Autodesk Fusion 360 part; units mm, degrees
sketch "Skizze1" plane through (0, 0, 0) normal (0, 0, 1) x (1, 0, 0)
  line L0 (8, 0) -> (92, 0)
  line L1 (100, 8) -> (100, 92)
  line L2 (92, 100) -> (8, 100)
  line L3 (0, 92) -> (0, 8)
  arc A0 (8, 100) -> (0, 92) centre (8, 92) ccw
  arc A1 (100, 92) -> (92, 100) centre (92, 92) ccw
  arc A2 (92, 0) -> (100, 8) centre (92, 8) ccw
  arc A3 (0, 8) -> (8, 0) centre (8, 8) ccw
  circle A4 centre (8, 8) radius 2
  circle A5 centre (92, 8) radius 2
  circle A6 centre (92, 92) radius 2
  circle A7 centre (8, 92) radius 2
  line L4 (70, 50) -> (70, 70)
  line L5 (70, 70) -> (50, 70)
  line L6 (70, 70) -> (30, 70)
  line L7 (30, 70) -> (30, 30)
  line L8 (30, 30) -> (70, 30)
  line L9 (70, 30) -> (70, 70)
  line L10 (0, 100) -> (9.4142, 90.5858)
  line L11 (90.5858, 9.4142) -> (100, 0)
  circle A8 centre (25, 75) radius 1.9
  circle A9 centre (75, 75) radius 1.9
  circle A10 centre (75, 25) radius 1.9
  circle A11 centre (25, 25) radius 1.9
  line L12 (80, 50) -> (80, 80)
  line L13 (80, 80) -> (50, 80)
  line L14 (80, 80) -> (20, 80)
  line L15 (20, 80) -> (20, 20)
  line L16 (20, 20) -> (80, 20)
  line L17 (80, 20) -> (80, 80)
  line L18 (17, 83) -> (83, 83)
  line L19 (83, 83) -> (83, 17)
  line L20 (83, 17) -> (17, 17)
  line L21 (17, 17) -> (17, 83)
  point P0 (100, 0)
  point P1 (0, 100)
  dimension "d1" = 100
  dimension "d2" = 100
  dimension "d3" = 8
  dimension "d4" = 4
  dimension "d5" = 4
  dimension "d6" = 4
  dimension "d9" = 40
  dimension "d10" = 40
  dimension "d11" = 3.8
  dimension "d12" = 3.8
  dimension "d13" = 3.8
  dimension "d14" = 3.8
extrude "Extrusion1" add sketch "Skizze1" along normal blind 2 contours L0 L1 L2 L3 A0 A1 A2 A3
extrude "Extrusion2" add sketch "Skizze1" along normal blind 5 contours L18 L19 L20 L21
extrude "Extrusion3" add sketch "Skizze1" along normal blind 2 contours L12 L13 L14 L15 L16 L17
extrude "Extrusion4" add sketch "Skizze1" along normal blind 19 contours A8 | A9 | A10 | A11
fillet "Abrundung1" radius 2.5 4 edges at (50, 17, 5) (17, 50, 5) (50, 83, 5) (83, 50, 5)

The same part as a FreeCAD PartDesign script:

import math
import FreeCAD as App
import Part
import Sketcher
Q = App.Units.Quantity


def edges_at(feature, points):
    """Names of the edges that pass closest to the given points."""
    edges = feature.Shape.Edges
    near = lambda p: min(range(len(edges)), key=lambda i: edges[i].distToShape(Part.Vertex(*p))[0])
    return sorted({f"Edge{near(p) + 1}" for p in points})

doc = App.newDocument("Part")
body = doc.addObject("PartDesign::Body", "Body")

sketch1 = body.newObject("Sketcher::SketchObject", "Sketch")
sketch1.AttachmentSupport = (doc.getObject("XY_Plane"), [""])
sketch1.MapMode = "FlatFace"
sketch1.addGeometry([
    Part.ArcOfCircle(Part.Circle(App.Vector(8, 8, 0), App.Vector(0, 0, 1), 8), math.radians(180), math.radians(270)),
    Part.LineSegment(App.Vector(8, 0, 0), App.Vector(92, 0, 0)),
    Part.ArcOfCircle(Part.Circle(App.Vector(92, 8, 0), App.Vector(0, 0, 1), 8), math.radians(-90), math.radians(-45)),
    Part.ArcOfCircle(Part.Circle(App.Vector(92, 8, 0), App.Vector(0, 0, 1), 8), math.radians(-45), math.radians(0)),
    Part.LineSegment(App.Vector(100, 8, 0), App.Vector(100, 92, 0)),
    Part.ArcOfCircle(Part.Circle(App.Vector(92, 92, 0), App.Vector(0, 0, 1), 8), math.radians(0), math.radians(90)),
    Part.LineSegment(App.Vector(92, 100, 0), App.Vector(8, 100, 0)),
    Part.ArcOfCircle(Part.Circle(App.Vector(8, 92, 0), App.Vector(0, 0, 1), 8), math.radians(90), math.radians(135)),
    Part.ArcOfCircle(Part.Circle(App.Vector(8, 92, 0), App.Vector(0, 0, 1), 8), math.radians(135), math.radians(180)),
    Part.LineSegment(App.Vector(0, 92, 0), App.Vector(0, 8, 0)),
    Part.Circle(App.Vector(8, 8, 0), App.Vector(0, 0, 1), 2),
    Part.Circle(App.Vector(92, 8, 0), App.Vector(0, 0, 1), 2),
    Part.Circle(App.Vector(8, 92, 0), App.Vector(0, 0, 1), 2),
    Part.LineSegment(App.Vector(17, 17, 0), App.Vector(17, 83, 0)),
    Part.LineSegment(App.Vector(17, 83, 0), App.Vector(83, 83, 0)),
    Part.LineSegment(App.Vector(83, 83, 0), App.Vector(83, 17, 0)),
    Part.LineSegment(App.Vector(83, 17, 0), App.Vector(17, 17, 0)),
    Part.Circle(App.Vector(92, 92, 0), App.Vector(0, 0, 1), 2),
], False)
sketch1.addConstraint([
    Sketcher.Constraint("Tangent", 0, 2, 1, 1),
    Sketcher.Constraint("Tangent", 1, 2, 2, 1),
    Sketcher.Constraint("Tangent", 2, 2, 3, 1),
    Sketcher.Constraint("Tangent", 3, 2, 4, 1),
    Sketcher.Constraint("Tangent", 4, 2, 5, 1),
    Sketcher.Constraint("Tangent", 5, 2, 6, 1),
    Sketcher.Constraint("Tangent", 6, 2, 7, 1),
    Sketcher.Constraint("Tangent", 7, 2, 8, 1),
    Sketcher.Constraint("Tangent", 8, 2, 9, 1),
    Sketcher.Constraint("Tangent", 9, 2, 0, 1),
    Sketcher.Constraint("Coincident", 13, 2, 14, 1),
    Sketcher.Constraint("Coincident", 14, 2, 15, 1),
    Sketcher.Constraint("Coincident", 15, 2, 16, 1),
    Sketcher.Constraint("Coincident", 16, 2, 13, 1),
    Sketcher.Constraint("Horizontal", 1),
    Sketcher.Constraint("Vertical", 4),
    Sketcher.Constraint("Horizontal", 6),
    Sketcher.Constraint("Vertical", 9),
    Sketcher.Constraint("Vertical", 13),
    Sketcher.Constraint("Horizontal", 14),
    Sketcher.Constraint("Vertical", 15),
    Sketcher.Constraint("Horizontal", 16),
    Sketcher.Constraint("Coincident", 10, 3, 0, 3),
    Sketcher.Constraint("Coincident", 11, 3, 2, 3),
    Sketcher.Constraint("Coincident", 12, 3, 7, 3),
    Sketcher.Constraint("Coincident", 17, 3, 5, 3),
    Sketcher.Constraint("Equal", 0, 2),
    Sketcher.Constraint("Equal", 2, 3),
    Sketcher.Constraint("Equal", 3, 5),
    Sketcher.Constraint("Equal", 5, 7),
    Sketcher.Constraint("Equal", 7, 8),
    Sketcher.Constraint("Equal", 10, 11),
    Sketcher.Constraint("Equal", 11, 12),
    Sketcher.Constraint("Equal", 12, 17),
    Sketcher.Constraint("PointOnObject", 0, 2, -1),
    Sketcher.Constraint("PointOnObject", 8, 2, -2),
    Sketcher.Constraint("Equal", 6, 4),
    Sketcher.Constraint("Equal", 16, 13),
    Sketcher.Constraint("Diameter", 10, Q("4 mm")),
    Sketcher.Constraint("Radius", 0, Q("8 mm")),
    Sketcher.Constraint("DistanceX", -1, 1, 3, 2, Q("100 mm")),
    Sketcher.Constraint("DistanceX", 14, 1, 14, 2, Q("66 mm")),
    Sketcher.Constraint("DistanceX", -1, 1, 13, 2, Q("17 mm")),
    Sketcher.Constraint("DistanceY", -1, 1, 13, 2, Q("83 mm")),
    Sketcher.Constraint("DistanceX", -1, 1, 2, 2, Q("97.6569 mm")),
    Sketcher.Constraint("DistanceX", -1, 1, 7, 2, Q("2.3431 mm")),
])
pad1 = body.newObject("PartDesign::Pad", "Pad")
pad1.Profile = sketch1
pad1.Length = 2

sketch2 = body.newObject("Sketcher::SketchObject", "Sketch001")
sketch2.AttachmentSupport = (doc.getObject("XY_Plane"), [""])
sketch2.MapMode = "FlatFace"
sketch2.addGeometry([
    Part.LineSegment(App.Vector(83, 83, 0), App.Vector(17, 83, 0)),
    Part.LineSegment(App.Vector(17, 83, 0), App.Vector(17, 17, 0)),
    Part.LineSegment(App.Vector(17, 17, 0), App.Vector(83, 17, 0)),
    Part.LineSegment(App.Vector(83, 17, 0), App.Vector(83, 83, 0)),
    Part.LineSegment(App.Vector(80, 80, 0), App.Vector(80, 20, 0)),
    Part.LineSegment(App.Vector(80, 20, 0), App.Vector(20, 20, 0)),
    Part.LineSegment(App.Vector(20, 20, 0), App.Vector(20, 80, 0)),
    Part.LineSegment(App.Vector(20, 80, 0), App.Vector(80, 80, 0)),
], False)
sketch2.addConstraint([
    Sketcher.Constraint("Coincident", 0, 2, 1, 1),
    Sketcher.Constraint("Coincident", 1, 2, 2, 1),
    Sketcher.Constraint("Coincident", 2, 2, 3, 1),
    Sketcher.Constraint("Coincident", 3, 2, 0, 1),
    Sketcher.Constraint("Coincident", 4, 2, 5, 1),
    Sketcher.Constraint("Coincident", 5, 2, 6, 1),
    Sketcher.Constraint("Coincident", 6, 2, 7, 1),
    Sketcher.Constraint("Coincident", 7, 2, 4, 1),
    Sketcher.Constraint("Horizontal", 0),
    Sketcher.Constraint("Vertical", 1),
    Sketcher.Constraint("Horizontal", 2),
    Sketcher.Constraint("Vertical", 3),
    Sketcher.Constraint("Vertical", 4),
    Sketcher.Constraint("Horizontal", 5),
    Sketcher.Constraint("Vertical", 6),
    Sketcher.Constraint("Horizontal", 7),
    Sketcher.Constraint("Equal", 2, 1),
    Sketcher.Constraint("Equal", 7, 4),
    Sketcher.Constraint("DistanceX", 0, 2, 0, 1, Q("66 mm")),
    Sketcher.Constraint("DistanceX", 5, 2, 5, 1, Q("60 mm")),
    Sketcher.Constraint("DistanceX", -1, 1, 0, 2, Q("17 mm")),
    Sketcher.Constraint("DistanceY", -1, 1, 0, 2, Q("83 mm")),
    Sketcher.Constraint("DistanceX", -1, 1, 4, 2, Q("80 mm")),
    Sketcher.Constraint("DistanceY", -1, 1, 4, 2, Q("20 mm")),
])
pad2 = body.newObject("PartDesign::Pad", "Pad001")
pad2.Profile = sketch2
pad2.Length = 5

sketch3 = body.newObject("Sketcher::SketchObject", "Sketch002")
sketch3.AttachmentSupport = (doc.getObject("XY_Plane"), [""])
sketch3.MapMode = "FlatFace"
sketch3.addGeometry([
    Part.LineSegment(App.Vector(80, 20, 0), App.Vector(80, 80, 0)),
    Part.LineSegment(App.Vector(80, 80, 0), App.Vector(20, 80, 0)),
    Part.LineSegment(App.Vector(20, 80, 0), App.Vector(20, 20, 0)),
    Part.LineSegment(App.Vector(20, 20, 0), App.Vector(80, 20, 0)),
    Part.Circle(App.Vector(25, 25, 0), App.Vector(0, 0, 1), 1.9),
    Part.Circle(App.Vector(75, 25, 0), App.Vector(0, 0, 1), 1.9),
    Part.Circle(App.Vector(25, 75, 0), App.Vector(0, 0, 1), 1.9),
    Part.LineSegment(App.Vector(70, 70, 0), App.Vector(70, 30, 0)),
    Part.LineSegment(App.Vector(70, 30, 0), App.Vector(30, 30, 0)),
    Part.LineSegment(App.Vector(30, 30, 0), App.Vector(30, 70, 0)),
    Part.LineSegment(App.Vector(30, 70, 0), App.Vector(70, 70, 0)),
    Part.Circle(App.Vector(75, 75, 0), App.Vector(0, 0, 1), 1.9),
], False)
sketch3.addConstraint([
    Sketcher.Constraint("Coincident", 0, 2, 1, 1),
    Sketcher.Constraint("Coincident", 1, 2, 2, 1),
    Sketcher.Constraint("Coincident", 2, 2, 3, 1),
    Sketcher.Constraint("Coincident", 3, 2, 0, 1),
    Sketcher.Constraint("Coincident", 7, 2, 8, 1),
    Sketcher.Constraint("Coincident", 8, 2, 9, 1),
    Sketcher.Constraint("Coincident", 9, 2, 10, 1),
    Sketcher.Constraint("Coincident", 10, 2, 7, 1),
    Sketcher.Constraint("Vertical", 0),
    Sketcher.Constraint("Horizontal", 1),
    Sketcher.Constraint("Vertical", 2),
    Sketcher.Constraint("Horizontal", 3),
    Sketcher.Constraint("Vertical", 7),
    Sketcher.Constraint("Horizontal", 8),
    Sketcher.Constraint("Vertical", 9),
    Sketcher.Constraint("Horizontal", 10),
    Sketcher.Constraint("Equal", 4, 5),
    Sketcher.Constraint("Equal", 5, 6),
    Sketcher.Constraint("Equal", 6, 11),
    Sketcher.Constraint("Horizontal", 4, 3, 5, 3),
    Sketcher.Constraint("Horizontal", 6, 3, 11, 3),
    Sketcher.Constraint("Vertical", 4, 3, 6, 3),
    Sketcher.Constraint("Vertical", 5, 3, 11, 3),
    Sketcher.Constraint("Equal", 3, 0),
    Sketcher.Constraint("Equal", 10, 7),
    Sketcher.Constraint("Diameter", 4, Q("3.8 mm")),
    Sketcher.Constraint("DistanceX", 8, 2, 8, 1, Q("40 mm")),
    Sketcher.Constraint("DistanceX", 1, 2, 1, 1, Q("60 mm")),
    Sketcher.Constraint("DistanceX", -1, 1, 4, 3, Q("25 mm")),
    Sketcher.Constraint("DistanceY", -1, 1, 4, 3, Q("25 mm")),
    Sketcher.Constraint("DistanceX", -1, 1, 5, 3, Q("75 mm")),
    Sketcher.Constraint("DistanceY", -1, 1, 6, 3, Q("75 mm")),
    Sketcher.Constraint("DistanceX", -1, 1, 0, 2, Q("80 mm")),
    Sketcher.Constraint("DistanceY", -1, 1, 0, 2, Q("80 mm")),
    Sketcher.Constraint("DistanceX", -1, 1, 7, 2, Q("70 mm")),
    Sketcher.Constraint("DistanceY", -1, 1, 7, 2, Q("30 mm")),
])
pad3 = body.newObject("PartDesign::Pad", "Pad002")
pad3.Profile = sketch3
pad3.Length = 2

sketch4 = body.newObject("Sketcher::SketchObject", "Sketch003")
sketch4.AttachmentSupport = (doc.getObject("XY_Plane"), [""])
sketch4.MapMode = "FlatFace"
sketch4.addGeometry([
    Part.Circle(App.Vector(25, 75, 0), App.Vector(0, 0, 1), 1.9),
    Part.Circle(App.Vector(75, 75, 0), App.Vector(0, 0, 1), 1.9),
    Part.Circle(App.Vector(75, 25, 0), App.Vector(0, 0, 1), 1.9),
    Part.Circle(App.Vector(25, 25, 0), App.Vector(0, 0, 1), 1.9),
], False)
sketch4.addConstraint([
    Sketcher.Constraint("Equal", 0, 1),
    Sketcher.Constraint("Equal", 1, 2),
    Sketcher.Constraint("Equal", 2, 3),
    Sketcher.Constraint("Horizontal", 0, 3, 1, 3),
    Sketcher.Constraint("Horizontal", 2, 3, 3, 3),
    Sketcher.Constraint("Vertical", 1, 3, 2, 3),
    Sketcher.Constraint("Vertical", 0, 3, 3, 3),
    Sketcher.Constraint("Diameter", 0, Q("3.8 mm")),
    Sketcher.Constraint("DistanceX", -1, 1, 0, 3, Q("25 mm")),
    Sketcher.Constraint("DistanceY", -1, 1, 0, 3, Q("75 mm")),
    Sketcher.Constraint("DistanceX", -1, 1, 1, 3, Q("75 mm")),
    Sketcher.Constraint("DistanceY", -1, 1, 2, 3, Q("25 mm")),
])
pad4 = body.newObject("PartDesign::Pad", "Pad003")
pad4.Profile = sketch4
pad4.Length = 19
doc.recompute()

fillet = body.newObject("PartDesign::Fillet", "Fillet")
fillet.Base = (pad4, edges_at(pad4, [
    (50, 17, 5),
    (17, 50, 5),
    (50, 83, 5),
    (83, 50, 5),
]))
fillet.Radius = 2.5

doc.recompute()
